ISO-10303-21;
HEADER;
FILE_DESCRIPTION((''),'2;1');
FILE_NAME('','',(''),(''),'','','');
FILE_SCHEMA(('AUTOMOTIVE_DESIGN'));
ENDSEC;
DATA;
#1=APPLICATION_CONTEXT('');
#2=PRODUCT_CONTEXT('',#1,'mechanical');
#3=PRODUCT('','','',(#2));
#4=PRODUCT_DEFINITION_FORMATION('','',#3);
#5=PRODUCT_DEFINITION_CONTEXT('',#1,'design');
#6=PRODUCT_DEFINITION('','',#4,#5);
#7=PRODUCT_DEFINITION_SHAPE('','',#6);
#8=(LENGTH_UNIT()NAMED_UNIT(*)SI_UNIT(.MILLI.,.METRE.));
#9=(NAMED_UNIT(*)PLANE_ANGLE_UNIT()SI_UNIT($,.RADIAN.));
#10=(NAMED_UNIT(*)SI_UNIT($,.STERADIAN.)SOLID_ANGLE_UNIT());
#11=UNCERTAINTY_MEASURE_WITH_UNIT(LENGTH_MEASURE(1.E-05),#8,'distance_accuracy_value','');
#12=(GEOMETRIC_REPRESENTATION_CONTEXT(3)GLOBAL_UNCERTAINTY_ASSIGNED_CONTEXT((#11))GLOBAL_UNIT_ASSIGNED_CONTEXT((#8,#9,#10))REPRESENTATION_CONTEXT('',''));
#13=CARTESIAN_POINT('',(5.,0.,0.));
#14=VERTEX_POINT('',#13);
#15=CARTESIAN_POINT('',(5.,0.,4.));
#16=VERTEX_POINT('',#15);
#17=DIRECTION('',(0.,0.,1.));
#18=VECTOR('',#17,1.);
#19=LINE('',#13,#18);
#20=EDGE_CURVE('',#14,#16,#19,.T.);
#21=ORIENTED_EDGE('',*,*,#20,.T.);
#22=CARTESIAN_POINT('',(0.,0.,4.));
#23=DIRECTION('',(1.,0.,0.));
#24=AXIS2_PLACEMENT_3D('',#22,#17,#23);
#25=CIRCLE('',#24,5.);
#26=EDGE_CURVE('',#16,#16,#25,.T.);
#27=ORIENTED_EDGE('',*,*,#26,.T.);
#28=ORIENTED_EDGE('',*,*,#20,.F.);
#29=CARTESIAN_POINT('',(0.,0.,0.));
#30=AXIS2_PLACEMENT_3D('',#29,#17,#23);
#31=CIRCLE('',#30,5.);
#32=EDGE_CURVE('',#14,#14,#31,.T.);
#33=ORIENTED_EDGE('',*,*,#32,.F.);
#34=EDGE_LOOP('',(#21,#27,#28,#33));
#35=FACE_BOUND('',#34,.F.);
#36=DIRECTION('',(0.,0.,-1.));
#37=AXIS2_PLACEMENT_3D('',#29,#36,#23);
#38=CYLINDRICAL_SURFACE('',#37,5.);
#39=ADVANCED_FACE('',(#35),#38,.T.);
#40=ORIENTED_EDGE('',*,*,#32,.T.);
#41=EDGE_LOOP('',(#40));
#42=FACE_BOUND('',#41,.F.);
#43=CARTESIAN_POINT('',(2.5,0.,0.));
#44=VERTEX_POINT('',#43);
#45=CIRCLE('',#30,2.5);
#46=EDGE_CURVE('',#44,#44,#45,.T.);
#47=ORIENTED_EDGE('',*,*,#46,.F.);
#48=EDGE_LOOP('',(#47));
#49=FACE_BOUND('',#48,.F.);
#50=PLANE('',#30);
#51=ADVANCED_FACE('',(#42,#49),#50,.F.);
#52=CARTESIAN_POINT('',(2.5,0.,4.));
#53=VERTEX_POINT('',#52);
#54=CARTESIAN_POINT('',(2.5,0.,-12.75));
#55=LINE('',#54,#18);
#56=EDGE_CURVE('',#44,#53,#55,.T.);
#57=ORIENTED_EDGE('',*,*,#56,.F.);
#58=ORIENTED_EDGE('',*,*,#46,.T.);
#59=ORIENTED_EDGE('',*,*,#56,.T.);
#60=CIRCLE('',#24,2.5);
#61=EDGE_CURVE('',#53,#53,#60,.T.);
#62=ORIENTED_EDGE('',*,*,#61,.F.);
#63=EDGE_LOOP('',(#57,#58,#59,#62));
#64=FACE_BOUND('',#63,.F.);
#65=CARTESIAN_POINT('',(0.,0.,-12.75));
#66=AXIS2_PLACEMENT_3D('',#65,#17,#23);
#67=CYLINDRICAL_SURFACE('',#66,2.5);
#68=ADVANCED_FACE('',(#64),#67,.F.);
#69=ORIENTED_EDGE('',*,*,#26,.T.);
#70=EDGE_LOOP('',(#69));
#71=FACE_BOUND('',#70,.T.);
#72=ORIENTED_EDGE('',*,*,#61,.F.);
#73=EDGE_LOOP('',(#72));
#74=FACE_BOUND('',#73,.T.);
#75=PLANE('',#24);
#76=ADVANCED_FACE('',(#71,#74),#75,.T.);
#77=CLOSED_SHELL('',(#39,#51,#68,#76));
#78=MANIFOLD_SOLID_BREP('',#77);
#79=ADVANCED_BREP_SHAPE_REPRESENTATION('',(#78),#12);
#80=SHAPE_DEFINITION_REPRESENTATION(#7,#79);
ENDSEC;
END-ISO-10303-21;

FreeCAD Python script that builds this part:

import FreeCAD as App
import Part
import Sketcher

V = App.Vector
Q = App.Units.Quantity

doc = App.newDocument("Part")
params = doc.addObject("Spreadsheet::Sheet", "Params")
for row, (alias, value) in enumerate([
    ("sketch1_diameter", "10 mm"),
    ("pad1_length", "4 mm"),
    ("sketch2_diameter", "5 mm"),
    ("hole_diameter", "5 mm"),
    ("hole_depth", "12.75 mm"),
], start=1):
    params.set(f"A{row}", alias)
    params.set(f"B{row}", "=" + value)
    params.setAlias(f"B{row}", alias)

body = doc.addObject("PartDesign::Body", "Body")

# Sketch on XY plane
sketch1 = body.newObject("Sketcher::SketchObject", "Sketch")
sketch1.AttachmentSupport = (doc.getObject("XY_Plane"), [""])
sketch1.MapMode = "FlatFace"
sketch1.addGeometry(Part.Circle(V(0, 0, 0), V(0, 0, 1), 5), False)
sketch1.addConstraint([
    Sketcher.Constraint("Coincident", 0, 3, -1, 1),
    Sketcher.Constraint("Diameter", 0, Q("10 mm")),
])
sketch1.setExpression("Constraints[1]", "Params.sketch1_diameter")
pad1 = body.newObject("PartDesign::Pad", "Pad")
pad1.Profile = sketch1
pad1.setExpression("Length", "Params.pad1_length")

# Sketch on XY plane
sketch2 = body.newObject("Sketcher::SketchObject", "Sketch001")
sketch2.AttachmentSupport = (doc.getObject("XY_Plane"), [""])
sketch2.MapMode = "FlatFace"
sketch2.addGeometry(Part.Circle(V(0, 0, 0), V(0, 0, 1), 2.5), False)
sketch2.addConstraint([
    Sketcher.Constraint("Coincident", 0, 3, -1, 1),
    Sketcher.Constraint("Diameter", 0, Q("5 mm")),
])
sketch2.setExpression("Constraints[1]", "Params.sketch2_diameter")
doc.recompute()
hole = body.newObject("PartDesign::Hole", "Hole")
hole.Profile = sketch2
hole.ThreadType = "None"
hole.setExpression("Diameter", "Params.hole_diameter")
hole.DepthType = "Dimension"
hole.setExpression("Depth", "Params.hole_depth")
hole.DrillPoint = "Angled"
hole.DrillPointAngle = 118
hole.Reversed = True

doc.recompute()
